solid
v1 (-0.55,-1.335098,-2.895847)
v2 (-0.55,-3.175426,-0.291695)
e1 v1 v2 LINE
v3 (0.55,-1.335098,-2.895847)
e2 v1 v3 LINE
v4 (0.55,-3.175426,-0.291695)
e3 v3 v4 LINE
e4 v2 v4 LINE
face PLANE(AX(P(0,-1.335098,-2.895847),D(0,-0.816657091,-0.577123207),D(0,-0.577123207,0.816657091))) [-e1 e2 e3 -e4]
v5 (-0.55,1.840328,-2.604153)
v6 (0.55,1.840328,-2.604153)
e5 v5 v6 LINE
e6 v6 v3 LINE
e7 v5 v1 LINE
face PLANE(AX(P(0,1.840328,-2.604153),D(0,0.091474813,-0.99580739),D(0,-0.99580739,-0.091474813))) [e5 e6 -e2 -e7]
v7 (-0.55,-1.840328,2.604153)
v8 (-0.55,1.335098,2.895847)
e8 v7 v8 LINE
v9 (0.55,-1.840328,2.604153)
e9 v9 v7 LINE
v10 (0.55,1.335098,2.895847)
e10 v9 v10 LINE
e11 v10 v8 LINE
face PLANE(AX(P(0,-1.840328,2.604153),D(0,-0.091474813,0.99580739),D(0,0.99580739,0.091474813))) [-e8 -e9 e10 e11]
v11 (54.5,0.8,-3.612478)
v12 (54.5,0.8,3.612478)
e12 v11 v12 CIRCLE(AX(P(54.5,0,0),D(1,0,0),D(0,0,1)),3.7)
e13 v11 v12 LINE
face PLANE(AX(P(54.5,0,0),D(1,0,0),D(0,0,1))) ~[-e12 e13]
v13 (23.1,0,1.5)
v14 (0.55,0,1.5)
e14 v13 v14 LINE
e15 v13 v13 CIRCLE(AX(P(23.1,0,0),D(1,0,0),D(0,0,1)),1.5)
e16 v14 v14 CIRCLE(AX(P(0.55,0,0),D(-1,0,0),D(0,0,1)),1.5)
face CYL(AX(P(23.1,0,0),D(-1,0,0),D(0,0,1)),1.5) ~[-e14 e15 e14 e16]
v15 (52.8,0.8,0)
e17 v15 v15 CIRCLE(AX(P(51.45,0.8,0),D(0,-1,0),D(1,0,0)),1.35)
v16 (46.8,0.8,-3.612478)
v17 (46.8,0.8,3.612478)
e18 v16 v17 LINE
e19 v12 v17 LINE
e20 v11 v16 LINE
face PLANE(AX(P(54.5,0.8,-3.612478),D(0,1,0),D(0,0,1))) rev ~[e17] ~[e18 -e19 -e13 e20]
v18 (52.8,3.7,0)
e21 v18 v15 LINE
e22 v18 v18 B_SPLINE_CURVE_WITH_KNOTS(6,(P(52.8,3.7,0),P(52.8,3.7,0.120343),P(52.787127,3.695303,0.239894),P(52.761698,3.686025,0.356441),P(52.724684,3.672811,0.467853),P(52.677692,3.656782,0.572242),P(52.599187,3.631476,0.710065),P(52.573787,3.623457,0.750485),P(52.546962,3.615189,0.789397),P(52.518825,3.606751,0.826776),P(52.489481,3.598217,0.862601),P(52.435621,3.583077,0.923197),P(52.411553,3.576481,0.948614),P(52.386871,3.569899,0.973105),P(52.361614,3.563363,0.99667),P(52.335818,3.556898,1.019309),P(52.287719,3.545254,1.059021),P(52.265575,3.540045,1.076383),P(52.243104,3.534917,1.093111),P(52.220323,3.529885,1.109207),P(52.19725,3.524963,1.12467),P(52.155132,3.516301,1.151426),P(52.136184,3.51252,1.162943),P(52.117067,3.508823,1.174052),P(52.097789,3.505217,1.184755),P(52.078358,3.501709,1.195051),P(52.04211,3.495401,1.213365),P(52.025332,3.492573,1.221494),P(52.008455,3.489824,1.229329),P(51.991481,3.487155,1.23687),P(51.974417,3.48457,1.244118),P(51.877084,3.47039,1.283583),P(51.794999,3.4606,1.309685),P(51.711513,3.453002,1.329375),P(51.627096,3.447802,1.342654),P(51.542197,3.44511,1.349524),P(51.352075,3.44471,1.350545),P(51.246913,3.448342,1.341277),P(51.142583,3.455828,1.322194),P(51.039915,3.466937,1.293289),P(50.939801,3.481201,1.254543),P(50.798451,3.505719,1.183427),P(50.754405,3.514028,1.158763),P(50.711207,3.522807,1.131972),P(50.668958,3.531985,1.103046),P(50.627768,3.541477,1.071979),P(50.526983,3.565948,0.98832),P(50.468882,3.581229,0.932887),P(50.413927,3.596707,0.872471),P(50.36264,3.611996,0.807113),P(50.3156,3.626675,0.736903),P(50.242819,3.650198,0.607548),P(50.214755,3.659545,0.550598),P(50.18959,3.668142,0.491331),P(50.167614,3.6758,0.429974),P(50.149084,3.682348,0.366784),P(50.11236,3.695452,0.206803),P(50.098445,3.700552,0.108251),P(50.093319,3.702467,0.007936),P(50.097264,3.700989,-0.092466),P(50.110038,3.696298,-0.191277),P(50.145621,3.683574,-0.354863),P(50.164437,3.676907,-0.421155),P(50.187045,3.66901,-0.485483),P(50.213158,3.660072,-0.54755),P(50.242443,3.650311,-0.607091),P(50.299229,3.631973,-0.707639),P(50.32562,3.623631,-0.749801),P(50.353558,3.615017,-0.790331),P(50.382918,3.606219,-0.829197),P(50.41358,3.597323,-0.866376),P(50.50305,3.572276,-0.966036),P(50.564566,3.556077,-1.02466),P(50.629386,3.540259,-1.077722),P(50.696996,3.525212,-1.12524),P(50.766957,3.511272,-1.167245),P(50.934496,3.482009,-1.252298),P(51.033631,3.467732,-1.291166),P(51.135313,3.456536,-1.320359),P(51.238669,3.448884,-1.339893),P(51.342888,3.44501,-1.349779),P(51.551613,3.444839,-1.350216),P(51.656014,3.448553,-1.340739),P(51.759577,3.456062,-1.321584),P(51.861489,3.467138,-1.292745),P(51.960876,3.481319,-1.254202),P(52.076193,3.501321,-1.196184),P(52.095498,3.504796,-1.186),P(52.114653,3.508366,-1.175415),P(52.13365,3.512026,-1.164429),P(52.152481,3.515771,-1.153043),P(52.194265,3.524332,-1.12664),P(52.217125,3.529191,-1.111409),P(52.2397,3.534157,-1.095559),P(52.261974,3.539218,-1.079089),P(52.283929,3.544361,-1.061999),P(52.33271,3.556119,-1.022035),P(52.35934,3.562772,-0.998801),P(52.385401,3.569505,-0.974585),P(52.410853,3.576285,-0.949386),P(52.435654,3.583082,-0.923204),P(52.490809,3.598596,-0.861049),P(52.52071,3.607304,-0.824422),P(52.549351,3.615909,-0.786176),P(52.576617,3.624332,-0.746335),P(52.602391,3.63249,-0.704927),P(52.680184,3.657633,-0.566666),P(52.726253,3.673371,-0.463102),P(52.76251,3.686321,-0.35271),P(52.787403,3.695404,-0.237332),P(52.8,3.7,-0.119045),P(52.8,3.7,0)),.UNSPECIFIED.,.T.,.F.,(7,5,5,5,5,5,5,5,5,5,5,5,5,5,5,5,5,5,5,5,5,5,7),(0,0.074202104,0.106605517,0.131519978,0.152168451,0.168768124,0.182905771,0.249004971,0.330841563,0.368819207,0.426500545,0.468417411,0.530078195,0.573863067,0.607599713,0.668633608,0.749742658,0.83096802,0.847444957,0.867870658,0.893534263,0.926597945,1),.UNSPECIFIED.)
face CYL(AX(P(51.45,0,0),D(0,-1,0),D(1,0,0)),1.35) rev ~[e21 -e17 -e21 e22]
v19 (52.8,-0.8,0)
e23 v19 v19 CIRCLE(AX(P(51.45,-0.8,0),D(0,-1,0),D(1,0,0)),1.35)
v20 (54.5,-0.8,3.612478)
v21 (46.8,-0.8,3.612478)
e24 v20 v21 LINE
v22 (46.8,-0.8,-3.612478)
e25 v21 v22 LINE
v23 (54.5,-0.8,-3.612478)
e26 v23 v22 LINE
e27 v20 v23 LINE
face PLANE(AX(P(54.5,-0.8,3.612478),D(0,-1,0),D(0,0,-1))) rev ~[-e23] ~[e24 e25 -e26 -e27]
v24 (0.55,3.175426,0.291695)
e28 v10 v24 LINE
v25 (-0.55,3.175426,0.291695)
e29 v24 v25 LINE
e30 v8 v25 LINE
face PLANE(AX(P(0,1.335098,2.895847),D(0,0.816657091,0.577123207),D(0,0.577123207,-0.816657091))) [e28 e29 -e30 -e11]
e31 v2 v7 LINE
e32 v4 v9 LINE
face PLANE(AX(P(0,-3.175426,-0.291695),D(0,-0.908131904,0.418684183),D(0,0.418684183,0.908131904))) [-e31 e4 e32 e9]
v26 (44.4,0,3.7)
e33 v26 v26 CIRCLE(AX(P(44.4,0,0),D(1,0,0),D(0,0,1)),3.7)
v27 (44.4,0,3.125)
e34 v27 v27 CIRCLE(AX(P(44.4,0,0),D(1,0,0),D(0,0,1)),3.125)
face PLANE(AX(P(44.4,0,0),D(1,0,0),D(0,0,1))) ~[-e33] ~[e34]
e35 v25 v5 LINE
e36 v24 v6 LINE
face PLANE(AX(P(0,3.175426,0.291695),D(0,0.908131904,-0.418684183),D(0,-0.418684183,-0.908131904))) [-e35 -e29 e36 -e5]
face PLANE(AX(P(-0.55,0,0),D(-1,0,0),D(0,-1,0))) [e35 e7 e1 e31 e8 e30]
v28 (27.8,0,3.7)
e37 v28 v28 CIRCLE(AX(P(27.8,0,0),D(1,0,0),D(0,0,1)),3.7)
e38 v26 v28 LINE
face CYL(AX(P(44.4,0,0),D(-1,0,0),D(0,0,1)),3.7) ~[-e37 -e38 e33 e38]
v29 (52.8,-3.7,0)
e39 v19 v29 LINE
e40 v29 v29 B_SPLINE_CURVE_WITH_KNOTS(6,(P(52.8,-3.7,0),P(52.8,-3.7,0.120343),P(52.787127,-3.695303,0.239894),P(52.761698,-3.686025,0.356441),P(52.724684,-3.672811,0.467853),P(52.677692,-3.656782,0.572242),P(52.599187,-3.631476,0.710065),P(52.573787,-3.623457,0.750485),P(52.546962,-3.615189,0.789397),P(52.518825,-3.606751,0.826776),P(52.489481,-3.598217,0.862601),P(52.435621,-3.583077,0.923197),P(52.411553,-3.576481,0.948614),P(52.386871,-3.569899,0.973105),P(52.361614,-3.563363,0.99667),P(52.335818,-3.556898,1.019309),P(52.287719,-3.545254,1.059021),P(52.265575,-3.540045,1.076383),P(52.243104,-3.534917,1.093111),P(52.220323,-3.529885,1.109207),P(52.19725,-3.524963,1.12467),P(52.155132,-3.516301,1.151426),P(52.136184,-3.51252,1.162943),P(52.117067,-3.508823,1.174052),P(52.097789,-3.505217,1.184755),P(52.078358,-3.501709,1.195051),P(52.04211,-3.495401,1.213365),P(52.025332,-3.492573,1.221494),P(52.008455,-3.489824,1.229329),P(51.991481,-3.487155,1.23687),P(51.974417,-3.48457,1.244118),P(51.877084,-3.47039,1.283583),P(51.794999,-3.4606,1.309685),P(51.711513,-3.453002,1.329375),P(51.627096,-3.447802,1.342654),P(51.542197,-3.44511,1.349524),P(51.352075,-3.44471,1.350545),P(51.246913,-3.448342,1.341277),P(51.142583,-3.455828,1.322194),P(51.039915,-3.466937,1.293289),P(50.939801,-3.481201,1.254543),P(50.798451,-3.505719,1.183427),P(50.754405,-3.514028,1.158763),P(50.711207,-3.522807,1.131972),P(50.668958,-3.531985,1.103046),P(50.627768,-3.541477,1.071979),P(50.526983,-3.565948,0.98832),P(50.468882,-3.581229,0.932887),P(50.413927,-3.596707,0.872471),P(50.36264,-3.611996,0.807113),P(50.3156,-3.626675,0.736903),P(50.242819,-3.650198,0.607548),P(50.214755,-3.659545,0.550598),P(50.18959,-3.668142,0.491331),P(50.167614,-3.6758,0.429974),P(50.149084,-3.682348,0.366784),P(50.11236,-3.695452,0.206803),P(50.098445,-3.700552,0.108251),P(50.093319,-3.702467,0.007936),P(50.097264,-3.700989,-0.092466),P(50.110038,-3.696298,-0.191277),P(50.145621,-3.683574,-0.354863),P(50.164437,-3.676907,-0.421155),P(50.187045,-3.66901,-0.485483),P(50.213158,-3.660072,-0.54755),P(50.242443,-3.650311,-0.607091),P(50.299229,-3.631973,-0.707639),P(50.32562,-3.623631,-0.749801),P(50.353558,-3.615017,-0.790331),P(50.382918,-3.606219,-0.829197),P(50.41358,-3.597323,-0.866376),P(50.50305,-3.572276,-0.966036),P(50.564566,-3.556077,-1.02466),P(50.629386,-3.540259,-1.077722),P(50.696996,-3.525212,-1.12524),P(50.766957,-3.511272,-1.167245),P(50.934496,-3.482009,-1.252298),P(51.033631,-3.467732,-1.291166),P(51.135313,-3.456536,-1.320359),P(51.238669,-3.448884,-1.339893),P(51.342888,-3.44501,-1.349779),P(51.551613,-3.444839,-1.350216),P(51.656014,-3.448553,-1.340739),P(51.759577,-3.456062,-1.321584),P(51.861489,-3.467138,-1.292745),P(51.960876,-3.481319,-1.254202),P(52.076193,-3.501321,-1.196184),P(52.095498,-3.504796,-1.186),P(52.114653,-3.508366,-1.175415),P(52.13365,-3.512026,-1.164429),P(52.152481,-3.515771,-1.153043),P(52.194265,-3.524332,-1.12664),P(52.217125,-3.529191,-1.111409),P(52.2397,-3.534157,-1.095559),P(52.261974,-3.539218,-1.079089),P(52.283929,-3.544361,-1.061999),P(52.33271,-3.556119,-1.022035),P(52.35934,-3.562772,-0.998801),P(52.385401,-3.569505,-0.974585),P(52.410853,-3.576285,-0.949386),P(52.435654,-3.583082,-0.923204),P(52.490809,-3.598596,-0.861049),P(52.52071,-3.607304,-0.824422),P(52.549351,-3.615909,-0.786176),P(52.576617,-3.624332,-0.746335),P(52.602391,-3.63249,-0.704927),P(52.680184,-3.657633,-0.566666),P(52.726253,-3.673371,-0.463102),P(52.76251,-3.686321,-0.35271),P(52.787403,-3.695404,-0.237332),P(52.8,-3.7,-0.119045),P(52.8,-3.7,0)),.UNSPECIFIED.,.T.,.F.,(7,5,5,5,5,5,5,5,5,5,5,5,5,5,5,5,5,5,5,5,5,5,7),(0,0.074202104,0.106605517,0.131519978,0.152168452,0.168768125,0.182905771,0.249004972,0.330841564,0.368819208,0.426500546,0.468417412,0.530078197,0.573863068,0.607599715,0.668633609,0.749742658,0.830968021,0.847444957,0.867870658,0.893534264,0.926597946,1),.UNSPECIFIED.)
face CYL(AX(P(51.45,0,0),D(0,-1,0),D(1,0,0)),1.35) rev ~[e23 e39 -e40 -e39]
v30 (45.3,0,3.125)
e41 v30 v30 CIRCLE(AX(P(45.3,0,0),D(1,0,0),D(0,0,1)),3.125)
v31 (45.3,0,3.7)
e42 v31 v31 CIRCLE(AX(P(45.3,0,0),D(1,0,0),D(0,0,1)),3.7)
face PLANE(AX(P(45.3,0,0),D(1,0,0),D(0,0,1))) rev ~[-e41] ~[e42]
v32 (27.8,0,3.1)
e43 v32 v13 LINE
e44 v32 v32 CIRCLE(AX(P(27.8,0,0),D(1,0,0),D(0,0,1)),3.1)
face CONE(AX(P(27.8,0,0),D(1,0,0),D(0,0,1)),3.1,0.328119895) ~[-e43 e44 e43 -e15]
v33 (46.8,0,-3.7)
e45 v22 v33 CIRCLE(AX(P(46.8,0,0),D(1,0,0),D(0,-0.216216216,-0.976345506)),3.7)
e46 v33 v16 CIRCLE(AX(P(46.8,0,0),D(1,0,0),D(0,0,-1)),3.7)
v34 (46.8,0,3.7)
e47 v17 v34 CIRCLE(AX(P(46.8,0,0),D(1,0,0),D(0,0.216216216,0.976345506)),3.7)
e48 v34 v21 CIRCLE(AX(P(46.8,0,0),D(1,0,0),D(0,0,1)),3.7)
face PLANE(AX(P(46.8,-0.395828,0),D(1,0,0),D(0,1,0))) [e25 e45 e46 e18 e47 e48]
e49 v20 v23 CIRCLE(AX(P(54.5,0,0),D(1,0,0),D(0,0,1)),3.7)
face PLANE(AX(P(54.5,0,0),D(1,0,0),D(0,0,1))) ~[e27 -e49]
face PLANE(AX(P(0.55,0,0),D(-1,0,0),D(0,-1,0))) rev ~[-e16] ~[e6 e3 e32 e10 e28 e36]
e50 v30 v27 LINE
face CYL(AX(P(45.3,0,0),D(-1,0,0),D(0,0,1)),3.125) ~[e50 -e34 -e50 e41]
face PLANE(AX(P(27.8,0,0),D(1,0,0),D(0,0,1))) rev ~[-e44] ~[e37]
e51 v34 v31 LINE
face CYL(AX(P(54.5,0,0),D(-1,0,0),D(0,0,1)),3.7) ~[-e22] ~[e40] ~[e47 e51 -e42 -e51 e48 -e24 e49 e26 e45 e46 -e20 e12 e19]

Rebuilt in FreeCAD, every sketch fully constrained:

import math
import FreeCAD as App
import Part
import Sketcher
Q = App.Units.Quantity


def add_polygon(sketch, points):
    """Adds a closed chain of lines whose ends are joined by coincident constraints."""
    first, n = sketch.GeometryCount, len(points)
    for a, b in zip(points, points[1:] + points[:1]):
        sketch.addGeometry(Part.LineSegment(App.Vector(*a, 0), App.Vector(*b, 0)), False)
    for i in range(n):
        sketch.addConstraint(Sketcher.Constraint("Coincident", first + i, 2, first + (i + 1) % n, 1))

doc = App.newDocument("Part")
body = doc.addObject("PartDesign::Body", "Body")

# Sketch on XZ plane
sketch1 = body.newObject("Sketcher::SketchObject", "Sketch")
sketch1.AttachmentSupport = (doc.getObject("XZ_Plane"), [""])
sketch1.MapMode = "FlatFace"
add_polygon(sketch1, [(0, 1.5), (0, 0), (54.5, 0), (54.5, 3.7), (45.3, 3.7), (45.3, 3.1), (44.4, 3.1), (44.4, 3.7), (27.8, 3.7), (27.8, 3.1), (23.1, 1.5)])  # lines 0-10
sketch1.addConstraint([
    Sketcher.Constraint("Vertical", 0),
    Sketcher.Constraint("Horizontal", 1),
    Sketcher.Constraint("Vertical", 2),
    Sketcher.Constraint("Horizontal", 3),
    Sketcher.Constraint("Vertical", 4),
    Sketcher.Constraint("Horizontal", 5),
    Sketcher.Constraint("Vertical", 6),
    Sketcher.Constraint("Horizontal", 7),
    Sketcher.Constraint("Vertical", 8),
    Sketcher.Constraint("Horizontal", 10),
    Sketcher.Constraint("Coincident", 0, 2, -1, 1),
    Sketcher.Constraint("Horizontal", 3, 2, 6, 2),
    Sketcher.Constraint("DistanceX", 1, 1, 1, 2, Q("54.5 mm")),
    Sketcher.Constraint("DistanceX", 3, 2, 3, 1, Q("9.2 mm")),
    Sketcher.Constraint("DistanceX", 5, 2, 5, 1, Q("0.9 mm")),
    Sketcher.Constraint("DistanceX", 7, 2, 7, 1, Q("16.6 mm")),
    Sketcher.Constraint("DistanceX", 10, 2, 10, 1, Q("23.1 mm")),
    Sketcher.Constraint("DistanceY", 0, 2, 0, 1, Q("1.5 mm")),
    Sketcher.Constraint("DistanceY", 2, 1, 2, 2, Q("3.7 mm")),
    Sketcher.Constraint("DistanceY", 8, 2, 8, 1, Q("0.6 mm")),
    Sketcher.Constraint("DistanceY", 4, 2, 4, 1, Q("0.575 mm")),
])
revolution = body.newObject("PartDesign::Revolution", "Revolution")
revolution.Profile = sketch1
revolution.ReferenceAxis = (sketch1, ["H_Axis"])
revolution.Angle = 360

# Sketch on YZ plane
sketch2 = body.newObject("Sketcher::SketchObject", "Sketch001")
sketch2.AttachmentSupport = (doc.getObject("YZ_Plane"), [""])
sketch2.MapMode = "FlatFace"
sketch2.AttachmentOffset = App.Placement(App.Vector(0, 0, 54.5), App.Rotation())
sketch2.addGeometry([
    Part.ArcOfCircle(Part.Circle(App.Vector(0, 0, 0), App.Vector(0, 0, 1), 3.7), math.radians(90), math.radians(102.49)),  # 0
    Part.LineSegment(App.Vector(-0.8, 3.6, 0), App.Vector(-0.8, -3.6, 0)),  # 1
    Part.ArcOfCircle(Part.Circle(App.Vector(0, 0, 0), App.Vector(0, 0, 1), 3.7), math.radians(-102.49), math.radians(-90)),  # 2
    Part.ArcOfCircle(Part.Circle(App.Vector(0, 0, 0), App.Vector(0, 0, 1), 3.7), math.radians(-90), math.radians(-77.51)),  # 3
    Part.LineSegment(App.Vector(0.8, -3.6, 0), App.Vector(0.8, 3.6, 0)),  # 4
    Part.ArcOfCircle(Part.Circle(App.Vector(0, 0, 0), App.Vector(0, 0, 1), 3.7), math.radians(77.51), math.radians(90)),  # 5
], False)
sketch2.addConstraint([
    Sketcher.Constraint("Coincident", 0, 2, 1, 1),
    Sketcher.Constraint("Coincident", 1, 2, 2, 1),
    Sketcher.Constraint("Tangent", 2, 2, 3, 1),
    Sketcher.Constraint("Coincident", 3, 2, 4, 1),
    Sketcher.Constraint("Coincident", 4, 2, 5, 1),
    Sketcher.Constraint("Tangent", 5, 2, 0, 1),
    Sketcher.Constraint("Vertical", 1),
    Sketcher.Constraint("Vertical", 4),
    Sketcher.Constraint("Coincident", 0, 3, -1, 1),
    Sketcher.Constraint("Coincident", 2, 3, -1, 1),
    Sketcher.Constraint("Equal", 0, 2),
    Sketcher.Constraint("Equal", 2, 3),
    Sketcher.Constraint("Equal", 3, 5),
    Sketcher.Constraint("PointOnObject", 2, 2, -2),
    Sketcher.Constraint("PointOnObject", 5, 2, -2),
    Sketcher.Constraint("Horizontal", 1, 2, 3, 2),
    Sketcher.Constraint("Radius", 0, Q("3.7 mm")),
    Sketcher.Constraint("DistanceX", 0, 2, -1, 1, Q("0.8 mm")),
])
pocket1 = body.newObject("PartDesign::Pocket", "Pocket")
pocket1.Profile = sketch2
pocket1.Length = 7.7

# Sketch on XZ plane
sketch3 = body.newObject("Sketcher::SketchObject", "Sketch002")
sketch3.AttachmentSupport = (doc.getObject("XZ_Plane"), [""])
sketch3.MapMode = "FlatFace"
sketch3.addGeometry(Part.Circle(App.Vector(51.5, 0, 0), App.Vector(0, 0, 1), 1.4), False)
sketch3.addConstraint([
    Sketcher.Constraint("PointOnObject", 0, 3, -1),
    Sketcher.Constraint("Diameter", 0, Q("2.7 mm")),
    Sketcher.Constraint("DistanceX", -1, 1, 0, 3, Q("51.45 mm")),
])
pocket2 = body.newObject("PartDesign::Pocket", "Pocket001")
pocket2.Profile = sketch3
pocket2.Length = 25
pocket2.Midplane = True

# Sketch on YZ plane
sketch4 = body.newObject("Sketcher::SketchObject", "Sketch003")
sketch4.AttachmentSupport = (doc.getObject("YZ_Plane"), [""])
sketch4.MapMode = "FlatFace"
add_polygon(sketch4, [(-3.2, -0.3), (-1.8, 2.6), (1.3, 2.9), (3.2, 0.3), (1.8, -2.6), (-1.3, -2.9)])  # lines 0-5
sketch4.addConstraint([
    Sketcher.Constraint("Symmetric", 0, 2, 3, 2, -1, 1),
    Sketcher.Constraint("Symmetric", 1, 2, 4, 2, -1, 1),
    Sketcher.Constraint("Symmetric", 2, 2, 5, 2, -1, 1),
    Sketcher.Constraint("Equal", 0, 1),
    Sketcher.Constraint("Equal", 1, 2),
    Sketcher.Constraint("DistanceY", 3, 2, 1, 2, Q("5.5 mm")),
    Sketcher.Constraint("DistanceX", -1, 1, 1, 2, Q("1.335098 mm")),
    Sketcher.Constraint("DistanceX", 3, 2, 2, 2, Q("1.335098 mm")),
    Sketcher.Constraint("DistanceX", 0, 2, -1, 1, Q("1.840328 mm")),
])
pad1 = body.newObject("PartDesign::Pad", "Pad")
pad1.Profile = sketch4
pad1.Length = 1.1
pad1.Midplane = True

doc.recompute()
